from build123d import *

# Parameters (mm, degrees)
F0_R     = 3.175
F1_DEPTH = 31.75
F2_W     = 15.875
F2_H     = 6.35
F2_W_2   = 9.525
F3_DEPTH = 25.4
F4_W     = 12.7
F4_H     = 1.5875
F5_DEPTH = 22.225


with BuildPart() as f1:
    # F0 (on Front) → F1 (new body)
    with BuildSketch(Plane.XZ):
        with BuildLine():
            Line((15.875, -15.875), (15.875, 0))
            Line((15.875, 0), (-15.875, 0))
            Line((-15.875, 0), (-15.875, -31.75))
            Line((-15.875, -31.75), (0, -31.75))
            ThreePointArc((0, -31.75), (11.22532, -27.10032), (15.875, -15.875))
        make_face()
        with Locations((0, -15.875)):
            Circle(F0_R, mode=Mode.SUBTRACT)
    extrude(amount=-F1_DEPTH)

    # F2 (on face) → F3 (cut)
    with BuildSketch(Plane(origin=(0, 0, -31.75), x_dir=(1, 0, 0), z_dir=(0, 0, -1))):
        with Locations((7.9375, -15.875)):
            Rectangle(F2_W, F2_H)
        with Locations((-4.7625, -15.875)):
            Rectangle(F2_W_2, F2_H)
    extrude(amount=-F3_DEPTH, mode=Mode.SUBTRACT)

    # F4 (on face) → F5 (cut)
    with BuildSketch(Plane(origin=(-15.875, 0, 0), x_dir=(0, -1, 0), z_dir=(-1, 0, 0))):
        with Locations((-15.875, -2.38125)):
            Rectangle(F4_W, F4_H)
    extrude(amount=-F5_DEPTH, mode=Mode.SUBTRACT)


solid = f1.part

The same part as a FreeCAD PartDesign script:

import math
import FreeCAD as App
import Part
import Sketcher

V = App.Vector
Q = App.Units.Quantity

doc = App.newDocument("Part")
body = doc.addObject("PartDesign::Body", "Body")

# Sketch on XZ plane
sketch1 = body.newObject("Sketcher::SketchObject", "Sketch")
sketch1.AttachmentSupport = (doc.getObject("XZ_Plane"), [""])
sketch1.MapMode = "FlatFace"
sketch1.addGeometry(Part.LineSegment(V(15.875, -15.875, 0), V(15.875, 0, 0)), False)
sketch1.addGeometry(Part.LineSegment(V(15.875, 0, 0), V(-15.875, 0, 0)), False)
sketch1.addGeometry(Part.LineSegment(V(-15.875, 0, 0), V(-15.875, -31.75, 0)), False)
sketch1.addGeometry(Part.LineSegment(V(-15.875, -31.75, 0), V(0, -31.75, 0)), False)
sketch1.addGeometry(Part.ArcOfCircle(Part.Circle(V(-0.000001, -15.874999, 0), V(0, 0, 1), 15.875001), math.radians(-89.999998), math.radians(-0.000002)), False)
sketch1.addGeometry(Part.Circle(V(0, -15.875, 0), V(0, 0, 1), 3.175), False)
sketch1.addConstraint(Sketcher.Constraint("Coincident", 0, 2, 1, 1))
sketch1.addConstraint(Sketcher.Constraint("Coincident", 1, 2, 2, 1))
sketch1.addConstraint(Sketcher.Constraint("Coincident", 2, 2, 3, 1))
sketch1.addConstraint(Sketcher.Constraint("Tangent", 3, 2, 4, 1))
sketch1.addConstraint(Sketcher.Constraint("Tangent", 4, 2, 0, 1))
sketch1.addConstraint(Sketcher.Constraint("Vertical", 0))
sketch1.addConstraint(Sketcher.Constraint("Horizontal", 1))
sketch1.addConstraint(Sketcher.Constraint("Vertical", 2))
sketch1.addConstraint(Sketcher.Constraint("Horizontal", 3))
sketch1.addConstraint(Sketcher.Constraint("Coincident", 5, 3, 4, 3))
sketch1.addConstraint(Sketcher.Constraint("Symmetric", 0, 2, 1, 2, -1, 1))
sketch1.addConstraint(Sketcher.Constraint("PointOnObject", 4, 3, -2))
sketch1.addConstraint(Sketcher.Constraint("Equal", 3, 0))
sketch1.addConstraint(Sketcher.Constraint("Diameter", 5, Q("0.25 in")))
sketch1.addConstraint(Sketcher.Constraint("Radius", 4, Q("0.625 in")))
pad1 = body.newObject("PartDesign::Pad", "Pad")
pad1.Profile = sketch1
pad1.Length = Q("1.25 in")
pad1.Reversed = True

# Sketch on XY plane
sketch2 = body.newObject("Sketcher::SketchObject", "Sketch001")
sketch2.AttachmentSupport = (doc.getObject("XY_Plane"), [""])
sketch2.MapMode = "FlatFace"
sketch2.AttachmentOffset = App.Placement(V(0, 0, -1.25 * 25.4), App.Rotation())
sketch2.addGeometry(Part.LineSegment(V(15.875, 19.05, 0), V(15.875, 12.7, 0)), False)
sketch2.addGeometry(Part.LineSegment(V(15.875, 12.7, 0), V(-9.525, 12.7, 0)), False)
sketch2.addGeometry(Part.LineSegment(V(-9.525, 12.7, 0), V(-9.525, 19.05, 0)), False)
sketch2.addGeometry(Part.LineSegment(V(-9.525, 19.05, 0), V(15.875, 19.05, 0)), False)
sketch2.addConstraint(Sketcher.Constraint("Coincident", 0, 2, 1, 1))
sketch2.addConstraint(Sketcher.Constraint("Coincident", 1, 2, 2, 1))
sketch2.addConstraint(Sketcher.Constraint("Coincident", 2, 2, 3, 1))
sketch2.addConstraint(Sketcher.Constraint("Coincident", 3, 2, 0, 1))
sketch2.addConstraint(Sketcher.Constraint("Vertical", 0))
sketch2.addConstraint(Sketcher.Constraint("Horizontal", 1))
sketch2.addConstraint(Sketcher.Constraint("Vertical", 2))
sketch2.addConstraint(Sketcher.Constraint("Horizontal", 3))
sketch2.addConstraint(Sketcher.Constraint("DistanceX", 1, 2, 1, 1, Q("1 in")))
sketch2.addConstraint(Sketcher.Constraint("DistanceY", 0, 2, 0, 1, Q("0.25 in")))
sketch2.addConstraint(Sketcher.Constraint("DistanceY", -1, 1, 0, 2, Q("0.5 in")))
sketch2.addConstraint(Sketcher.Constraint("DistanceX", -1, 1, 0, 2, Q("0.625 in")))
pocket1 = body.newObject("PartDesign::Pocket", "Pocket")
pocket1.Profile = sketch2
pocket1.Length = Q("1 in")
pocket1.Reversed = True

# Sketch on YZ plane
sketch3 = body.newObject("Sketcher::SketchObject", "Sketch002")
sketch3.AttachmentSupport = (doc.getObject("YZ_Plane"), [""])
sketch3.MapMode = "FlatFace"
sketch3.AttachmentOffset = App.Placement(V(0, 0, -0.625 * 25.4), App.Rotation())
sketch3.addGeometry(Part.LineSegment(V(22.225, -1.5875, 0), V(22.225, -3.175, 0)), False)
sketch3.addGeometry(Part.LineSegment(V(22.225, -3.175, 0), V(9.525, -3.175, 0)), False)
sketch3.addGeometry(Part.LineSegment(V(9.525, -3.175, 0), V(9.525, -1.5875, 0)), False)
sketch3.addGeometry(Part.LineSegment(V(9.525, -1.5875, 0), V(22.225, -1.5875, 0)), False)
sketch3.addConstraint(Sketcher.Constraint("Coincident", 0, 2, 1, 1))
sketch3.addConstraint(Sketcher.Constraint("Coincident", 1, 2, 2, 1))
sketch3.addConstraint(Sketcher.Constraint("Coincident", 2, 2, 3, 1))
sketch3.addConstraint(Sketcher.Constraint("Coincident", 3, 2, 0, 1))
sketch3.addConstraint(Sketcher.Constraint("Vertical", 0))
sketch3.addConstraint(Sketcher.Constraint("Horizontal", 1))
sketch3.addConstraint(Sketcher.Constraint("Vertical", 2))
sketch3.addConstraint(Sketcher.Constraint("Horizontal", 3))
sketch3.addConstraint(Sketcher.Constraint("DistanceX", 1, 2, 1, 1, Q("0.5 in")))
sketch3.addConstraint(Sketcher.Constraint("DistanceY", 0, 2, 0, 1, Q("0.0625 in")))
sketch3.addConstraint(Sketcher.Constraint("DistanceX", -1, 1, 0, 2, Q("0.875 in")))
sketch3.addConstraint(Sketcher.Constraint("DistanceY", 0, 2, -1, 1, Q("0.125 in")))
pocket2 = body.newObject("PartDesign::Pocket", "Pocket001")
pocket2.Profile = sketch3
pocket2.Length = Q("0.875 in")
pocket2.Reversed = True

doc.recompute()
